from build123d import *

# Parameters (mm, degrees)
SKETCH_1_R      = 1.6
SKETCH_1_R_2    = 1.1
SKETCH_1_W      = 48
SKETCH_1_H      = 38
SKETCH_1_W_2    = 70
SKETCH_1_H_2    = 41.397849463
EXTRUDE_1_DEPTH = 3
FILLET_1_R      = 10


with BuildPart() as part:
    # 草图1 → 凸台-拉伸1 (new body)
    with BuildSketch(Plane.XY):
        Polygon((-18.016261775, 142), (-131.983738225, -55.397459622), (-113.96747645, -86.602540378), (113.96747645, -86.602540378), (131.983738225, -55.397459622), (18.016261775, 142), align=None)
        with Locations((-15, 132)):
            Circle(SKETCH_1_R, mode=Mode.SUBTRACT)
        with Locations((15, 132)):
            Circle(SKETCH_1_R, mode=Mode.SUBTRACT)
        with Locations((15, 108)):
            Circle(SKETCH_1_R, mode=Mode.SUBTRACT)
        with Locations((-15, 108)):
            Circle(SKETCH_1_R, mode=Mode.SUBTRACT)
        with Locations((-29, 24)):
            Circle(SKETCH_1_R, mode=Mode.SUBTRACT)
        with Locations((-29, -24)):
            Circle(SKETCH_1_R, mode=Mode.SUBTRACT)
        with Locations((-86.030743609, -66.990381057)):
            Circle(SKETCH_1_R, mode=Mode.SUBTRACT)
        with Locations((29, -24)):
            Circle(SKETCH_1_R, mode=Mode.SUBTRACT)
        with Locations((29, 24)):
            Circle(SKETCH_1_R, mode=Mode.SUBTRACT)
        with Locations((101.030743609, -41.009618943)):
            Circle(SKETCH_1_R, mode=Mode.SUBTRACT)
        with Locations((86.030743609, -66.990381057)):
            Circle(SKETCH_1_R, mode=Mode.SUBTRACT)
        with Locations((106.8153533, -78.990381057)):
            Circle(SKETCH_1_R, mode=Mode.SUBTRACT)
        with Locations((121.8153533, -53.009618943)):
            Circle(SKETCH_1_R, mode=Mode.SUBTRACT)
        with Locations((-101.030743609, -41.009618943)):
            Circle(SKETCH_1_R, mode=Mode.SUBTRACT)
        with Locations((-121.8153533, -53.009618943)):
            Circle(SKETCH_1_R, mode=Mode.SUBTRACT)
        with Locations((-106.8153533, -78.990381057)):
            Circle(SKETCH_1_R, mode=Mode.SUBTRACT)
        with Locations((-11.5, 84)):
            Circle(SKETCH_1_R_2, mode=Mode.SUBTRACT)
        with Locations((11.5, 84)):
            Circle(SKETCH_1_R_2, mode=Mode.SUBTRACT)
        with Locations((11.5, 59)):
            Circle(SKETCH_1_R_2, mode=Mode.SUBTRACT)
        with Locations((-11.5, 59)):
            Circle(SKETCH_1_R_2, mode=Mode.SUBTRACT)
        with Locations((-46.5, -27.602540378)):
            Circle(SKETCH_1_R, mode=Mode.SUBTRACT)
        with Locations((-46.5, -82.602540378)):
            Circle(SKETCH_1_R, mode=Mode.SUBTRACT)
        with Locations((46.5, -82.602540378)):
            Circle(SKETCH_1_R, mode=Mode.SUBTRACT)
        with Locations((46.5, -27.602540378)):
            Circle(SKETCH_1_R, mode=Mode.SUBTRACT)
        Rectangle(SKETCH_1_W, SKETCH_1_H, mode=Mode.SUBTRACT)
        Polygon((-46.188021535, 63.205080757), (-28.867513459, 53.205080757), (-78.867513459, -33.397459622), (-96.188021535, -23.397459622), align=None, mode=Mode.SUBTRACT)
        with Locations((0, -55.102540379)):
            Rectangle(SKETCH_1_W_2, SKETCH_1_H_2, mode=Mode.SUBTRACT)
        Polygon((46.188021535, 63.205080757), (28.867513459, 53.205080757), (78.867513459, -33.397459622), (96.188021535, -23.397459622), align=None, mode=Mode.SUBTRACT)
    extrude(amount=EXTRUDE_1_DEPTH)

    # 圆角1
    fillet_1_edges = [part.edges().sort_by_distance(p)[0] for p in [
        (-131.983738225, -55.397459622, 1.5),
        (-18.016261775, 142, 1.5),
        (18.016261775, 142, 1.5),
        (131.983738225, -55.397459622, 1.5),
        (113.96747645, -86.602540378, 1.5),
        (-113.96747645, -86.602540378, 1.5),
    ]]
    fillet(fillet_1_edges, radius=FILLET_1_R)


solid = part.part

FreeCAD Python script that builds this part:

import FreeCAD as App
import Part
import Sketcher
from FreeCAD import Vector
Q = App.Units.Quantity


def edges_at(feature, points):
    """Names of the edges that pass closest to the given points."""
    edges = feature.Shape.Edges
    near = lambda p: min(range(len(edges)), key=lambda i: edges[i].distToShape(Part.Vertex(*p))[0])
    return sorted({f"Edge{near(p) + 1}" for p in points})


def add_polygon(sketch, points):
    """Adds a closed chain of lines whose ends are joined by coincident constraints."""
    first, n = sketch.GeometryCount, len(points)
    for a, b in zip(points, points[1:] + points[:1]):
        sketch.addGeometry(Part.LineSegment(App.Vector(*a, 0), App.Vector(*b, 0)), False)
    for i in range(n):
        sketch.addConstraint(Sketcher.Constraint("Coincident", first + i, 2, first + (i + 1) % n, 1))

doc = App.newDocument("Part")
params = doc.addObject("Spreadsheet::Sheet", "Params")
for row, (alias, value) in enumerate([
    ("sketch1_diameter", "3.2 mm"),
    ("sketch1_diameter2", "2.2 mm"),
    ("sketch1_width", "70 mm"),
    ("sketch1_width2", "48 mm"),
    ("sketch1_height", "38 mm"),
    ("pad1_length", "3 mm"),
    ("fillet_radius", "10 mm"),
], start=1):
    params.set(f"A{row}", alias)
    params.set(f"B{row}", "=" + value)
    params.setAlias(f"B{row}", alias)

body = doc.addObject("PartDesign::Body", "Body")

# Sketch on XY plane
sketch1 = body.newObject("Sketcher::SketchObject", "Sketch")
sketch1.AttachmentSupport = (doc.getObject("XY_Plane"), [""])
sketch1.MapMode = "FlatFace"
add_polygon(sketch1, [(-18, 142), (-132, -55.4), (-114, -86.6), (114, -86.6), (132, -55.4), (18, 142)])  # lines 0-5
sketch1.addGeometry(Part.Circle(Vector(-106.8, -79, 0), Vector(0, 0, 1), 1.6), False)  # 6
sketch1.addGeometry(Part.Circle(Vector(-86, -67, 0), Vector(0, 0, 1), 1.6), False)  # 7
sketch1.addGeometry(Part.Circle(Vector(-121.8, -53, 0), Vector(0, 0, 1), 1.6), False)  # 8
sketch1.addGeometry(Part.Circle(Vector(-101, -41, 0), Vector(0, 0, 1), 1.6), False)  # 9
sketch1.addGeometry(Part.Circle(Vector(-46.5, -82.6, 0), Vector(0, 0, 1), 1.6), False)  # 10
add_polygon(sketch1, [(-96.2, -23.4), (-46.2, 63.2), (-28.9, 53.2), (-78.9, -33.4)])  # lines 11-14
sketch1.addGeometry(Part.Circle(Vector(-46.5, -27.6, 0), Vector(0, 0, 1), 1.6), False)  # 15
sketch1.addGeometry(Part.Circle(Vector(-29, -24, 0), Vector(0, 0, 1), 1.6), False)  # 16
sketch1.addGeometry(Part.Circle(Vector(-29, 24, 0), Vector(0, 0, 1), 1.6), False)  # 17
sketch1.addGeometry(Part.Circle(Vector(46.5, -82.6, 0), Vector(0, 0, 1), 1.6), False)  # 18
add_polygon(sketch1, [(35, -75.8), (-35, -75.8), (-35, -34.4), (35, -34.4)])  # lines 19-22
sketch1.addGeometry(Part.Circle(Vector(86, -67, 0), Vector(0, 0, 1), 1.6), False)  # 23
sketch1.addGeometry(Part.Circle(Vector(106.8, -79, 0), Vector(0, 0, 1), 1.6), False)  # 24
sketch1.addGeometry(Part.Circle(Vector(121.8, -53, 0), Vector(0, 0, 1), 1.6), False)  # 25
sketch1.addGeometry(Part.Circle(Vector(101, -41, 0), Vector(0, 0, 1), 1.6), False)  # 26
sketch1.addGeometry(Part.Circle(Vector(29, -24, 0), Vector(0, 0, 1), 1.6), False)  # 27
sketch1.addGeometry(Part.Circle(Vector(46.5, -27.6, 0), Vector(0, 0, 1), 1.6), False)  # 28
add_polygon(sketch1, [(24, -19), (-24, -19), (-24, 19), (24, 19)])  # lines 29-32
sketch1.addGeometry(Part.Circle(Vector(29, 24, 0), Vector(0, 0, 1), 1.6), False)  # 33
add_polygon(sketch1, [(28.9, 53.2), (46.2, 63.2), (96.2, -23.4), (78.9, -33.4)])  # lines 34-37
sketch1.addGeometry(Part.Circle(Vector(-11.5, 59, 0), Vector(0, 0, 1), 1.1), False)  # 38
sketch1.addGeometry(Part.Circle(Vector(-11.5, 84, 0), Vector(0, 0, 1), 1.1), False)  # 39
sketch1.addGeometry(Part.Circle(Vector(-15, 108, 0), Vector(0, 0, 1), 1.6), False)  # 40
sketch1.addGeometry(Part.Circle(Vector(-15, 132, 0), Vector(0, 0, 1), 1.6), False)  # 41
sketch1.addGeometry(Part.Circle(Vector(11.5, 59, 0), Vector(0, 0, 1), 1.1), False)  # 42
sketch1.addGeometry(Part.Circle(Vector(11.5, 84, 0), Vector(0, 0, 1), 1.1), False)  # 43
sketch1.addGeometry(Part.Circle(Vector(15, 108, 0), Vector(0, 0, 1), 1.6), False)  # 44
sketch1.addGeometry(Part.Circle(Vector(15, 132, 0), Vector(0, 0, 1), 1.6), False)  # 45
sketch1.addConstraint(Sketcher.Constraint("Horizontal", 2))
sketch1.addConstraint(Sketcher.Constraint("Horizontal", 5))
sketch1.addConstraint(Sketcher.Constraint("Horizontal", 19))
sketch1.addConstraint(Sketcher.Constraint("Vertical", 20))
sketch1.addConstraint(Sketcher.Constraint("Horizontal", 21))
sketch1.addConstraint(Sketcher.Constraint("Vertical", 22))
sketch1.addConstraint(Sketcher.Constraint("Horizontal", 29))
sketch1.addConstraint(Sketcher.Constraint("Vertical", 30))
sketch1.addConstraint(Sketcher.Constraint("Horizontal", 31))
sketch1.addConstraint(Sketcher.Constraint("Vertical", 32))
sketch1.addConstraint(Sketcher.Constraint("Equal", 6, 7))
sketch1.addConstraint(Sketcher.Constraint("Equal", 7, 8))
sketch1.addConstraint(Sketcher.Constraint("Equal", 8, 9))
sketch1.addConstraint(Sketcher.Constraint("Equal", 9, 10))
sketch1.addConstraint(Sketcher.Constraint("Equal", 10, 15))
sketch1.addConstraint(Sketcher.Constraint("Equal", 15, 16))
sketch1.addConstraint(Sketcher.Constraint("Equal", 16, 17))
sketch1.addConstraint(Sketcher.Constraint("Equal", 17, 18))
sketch1.addConstraint(Sketcher.Constraint("Equal", 18, 23))
sketch1.addConstraint(Sketcher.Constraint("Equal", 23, 24))
sketch1.addConstraint(Sketcher.Constraint("Equal", 24, 25))
sketch1.addConstraint(Sketcher.Constraint("Equal", 25, 26))
sketch1.addConstraint(Sketcher.Constraint("Equal", 26, 27))
sketch1.addConstraint(Sketcher.Constraint("Equal", 27, 28))
sketch1.addConstraint(Sketcher.Constraint("Equal", 28, 33))
sketch1.addConstraint(Sketcher.Constraint("Equal", 38, 39))
sketch1.addConstraint(Sketcher.Constraint("Equal", 33, 40))
sketch1.addConstraint(Sketcher.Constraint("Equal", 40, 41))
sketch1.addConstraint(Sketcher.Constraint("Equal", 39, 42))
sketch1.addConstraint(Sketcher.Constraint("Equal", 42, 43))
sketch1.addConstraint(Sketcher.Constraint("Equal", 41, 44))
sketch1.addConstraint(Sketcher.Constraint("Equal", 44, 45))
sketch1.addConstraint(Sketcher.Constraint("Symmetric", 17, 3, 27, 3, -1, 1))
sketch1.addConstraint(Sketcher.Constraint("Symmetric", 16, 3, 33, 3, -1, 1))
sketch1.addConstraint(Sketcher.Constraint("Symmetric", 29, 2, 31, 2, -1, 1))
sketch1.addConstraint(Sketcher.Constraint("Symmetric", 10, 3, 18, 3, -2))
sketch1.addConstraint(Sketcher.Constraint("Symmetric", 7, 3, 23, 3, -2))
sketch1.addConstraint(Sketcher.Constraint("Symmetric", 6, 3, 24, 3, -2))
sketch1.addConstraint(Sketcher.Constraint("Symmetric", 8, 3, 25, 3, -2))
sketch1.addConstraint(Sketcher.Constraint("Symmetric", 9, 3, 26, 3, -2))
sketch1.addConstraint(Sketcher.Constraint("Symmetric", 16, 3, 27, 3, -2))
sketch1.addConstraint(Sketcher.Constraint("Symmetric", 15, 3, 28, 3, -2))
sketch1.addConstraint(Sketcher.Constraint("Symmetric", 38, 3, 42, 3, -2))
sketch1.addConstraint(Sketcher.Constraint("Symmetric", 39, 3, 43, 3, -2))
sketch1.addConstraint(Sketcher.Constraint("Symmetric", 40, 3, 44, 3, -2))
sketch1.addConstraint(Sketcher.Constraint("Symmetric", 41, 3, 45, 3, -2))
sketch1.addConstraint(Sketcher.Constraint("Symmetric", 0, 2, 3, 2, -2))
sketch1.addConstraint(Sketcher.Constraint("Symmetric", 11, 2, 34, 2, -2))
sketch1.addConstraint(Sketcher.Constraint("Symmetric", 14, 2, 35, 2, -2))
sketch1.addConstraint(Sketcher.Constraint("Symmetric", 13, 2, 36, 2, -2))
sketch1.addConstraint(Sketcher.Constraint("Symmetric", 12, 2, 37, 2, -2))
sketch1.addConstraint(Sketcher.Constraint("Parallel", 0, 3))
sketch1.addConstraint(Sketcher.Constraint("Parallel", 1, 4))
sketch1.addConstraint(Sketcher.Constraint("Parallel", 3, 11))
sketch1.addConstraint(Sketcher.Constraint("Perpendicular", 11, 12))
sketch1.addConstraint(Sketcher.Constraint("Perpendicular", 12, 13))
sketch1.addConstraint(Sketcher.Constraint("Perpendicular", 13, 14))
sketch1.addConstraint(Sketcher.Constraint("Perpendicular", 4, 34))
sketch1.addConstraint(Sketcher.Constraint("Vertical", 10, 3, 15, 3))
sketch1.addConstraint(Sketcher.Constraint("Vertical", 38, 3, 39, 3))
sketch1.addConstraint(Sketcher.Constraint("Vertical", 40, 3, 41, 3))
sketch1.addConstraint(Sketcher.Constraint("Diameter", 6, Q("3.2 mm")))
sketch1.addConstraint(Sketcher.Constraint("Diameter", 38, Q("2.2 mm")))
sketch1.addConstraint(Sketcher.Constraint("DistanceX", 19, 2, 19, 1, Q("70 mm")))
sketch1.addConstraint(Sketcher.Constraint("DistanceX", 29, 2, 29, 1, Q("48 mm")))
sketch1.addConstraint(Sketcher.Constraint("DistanceY", 30, 1, 30, 2, Q("38 mm")))
sketch1.addConstraint(Sketcher.Constraint("Angle", 0, Q("-120 deg")))
sketch1.addConstraint(Sketcher.Constraint("Distance", 11, Q("100 mm")))
sketch1.addConstraint(Sketcher.Constraint("Distance", 12, Q("20 mm")))
sketch1.addConstraint(Sketcher.Constraint("DistanceX", 16, 3, -1, 1, Q("29 mm")))
sketch1.addConstraint(Sketcher.Constraint("DistanceY", 16, 3, -1, 1, Q("24 mm")))
sketch1.addConstraint(Sketcher.Constraint("DistanceY", -1, 1, 38, 3, Q("59 mm")))
sketch1.addConstraint(Sketcher.Constraint("DistanceY", -1, 1, 39, 3, Q("84 mm")))
sketch1.addConstraint(Sketcher.Constraint("DistanceX", 40, 3, -1, 1, Q("15 mm")))
sketch1.addConstraint(Sketcher.Constraint("DistanceY", -1, 1, 40, 3, Q("108 mm")))
sketch1.addConstraint(Sketcher.Constraint("DistanceY", -1, 1, 41, 3, Q("132 mm")))
sketch1.addConstraint(Sketcher.Constraint("DistanceY", -1, 1, 4, 2, Q("142 mm")))
sketch1.addConstraint(Sketcher.Constraint("DistanceX", 19, 2, -1, 1, Q("35 mm")))
sketch1.addConstraint(Sketcher.Constraint("DistanceY", 6, 3, 7, 3, Q("12 mm")))
sketch1.addConstraint(Sketcher.Constraint("DistanceX", 8, 3, 6, 3, Q("15 mm")))
sketch1.addConstraint(Sketcher.Constraint("DistanceY", 8, 3, 9, 3, Q("12 mm")))
sketch1.addConstraint(Sketcher.Constraint("DistanceX", 9, 3, 7, 3, Q("15 mm")))
sketch1.addConstraint(Sketcher.Constraint("DistanceY", 10, 3, 15, 3, Q("55 mm")))
sketch1.addConstraint(Sketcher.Constraint("DistanceX", 10, 3, 18, 3, Q("93 mm")))
sketch1.addConstraint(Sketcher.Constraint("DistanceX", 15, 3, 38, 3, Q("35 mm")))
sketch1.addConstraint(Sketcher.Constraint("DistanceY", 2, 2, 18, 3, Q("4 mm")))
sketch1.addConstraint(Sketcher.Constraint("DistanceY", 0, 2, 14, 2, Q("32 mm")))
sketch1.addConstraint(Sketcher.Constraint("DistanceY", 20, 1, 20, 2, Q("41.397849 mm")))
sketch1.addConstraint(Sketcher.Constraint("DistanceX", 2, 1, 2, 2, Q("227.934953 mm")))
sketch1.addConstraint(Sketcher.Constraint("DistanceX", 5, 2, 5, 1, Q("36.032524 mm")))
sketch1.addConstraint(Sketcher.Constraint("DistanceY", 6, 3, -1, 1, Q("78.990381 mm")))
sketch1.addConstraint(Sketcher.Constraint("DistanceY", 8, 3, -1, 1, Q("53.009619 mm")))
sketch1.addConstraint(Sketcher.Constraint("DistanceY", 10, 3, -1, 1, Q("82.60254 mm")))
sketch1.addConstraint(Sketcher.Constraint("DistanceX", 11, 2, -1, 1, Q("46.188022 mm")))
sketch1.addConstraint(Sketcher.Constraint("DistanceX", 6, 3, 7, 3, Q("20.78461 mm")))
sketch1.addConstraint(Sketcher.Constraint("DistanceX", 9, 3, 13, 2, Q("22.16323 mm")))
sketch1.addConstraint(Sketcher.Constraint("DistanceY", 19, 2, -1, 1, Q("75.801465 mm")))
sketch1.setExpression("Constraints[83]", "Params.sketch1_diameter")
sketch1.setExpression("Constraints[84]", "Params.sketch1_diameter2")
sketch1.setExpression("Constraints[85]", "Params.sketch1_width")
sketch1.setExpression("Constraints[86]", "Params.sketch1_width2")
sketch1.setExpression("Constraints[87]", "Params.sketch1_height")
pad1 = body.newObject("PartDesign::Pad", "Pad")
pad1.Profile = sketch1
pad1.setExpression("Length", "Params.pad1_length")
doc.recompute()

fillet = body.newObject("PartDesign::Fillet", "Fillet")
fillet.Base = (pad1, edges_at(pad1, [
    (-131.984, -55.397, 1.5),
    (-18.016, 142, 1.5),
    (18.016, 142, 1.5),
    (131.984, -55.397, 1.5),
    (113.967, -86.603, 1.5),
    (-113.967, -86.603, 1.5),
]))
fillet.setExpression("Radius", "Params.fillet_radius")

doc.recompute()
